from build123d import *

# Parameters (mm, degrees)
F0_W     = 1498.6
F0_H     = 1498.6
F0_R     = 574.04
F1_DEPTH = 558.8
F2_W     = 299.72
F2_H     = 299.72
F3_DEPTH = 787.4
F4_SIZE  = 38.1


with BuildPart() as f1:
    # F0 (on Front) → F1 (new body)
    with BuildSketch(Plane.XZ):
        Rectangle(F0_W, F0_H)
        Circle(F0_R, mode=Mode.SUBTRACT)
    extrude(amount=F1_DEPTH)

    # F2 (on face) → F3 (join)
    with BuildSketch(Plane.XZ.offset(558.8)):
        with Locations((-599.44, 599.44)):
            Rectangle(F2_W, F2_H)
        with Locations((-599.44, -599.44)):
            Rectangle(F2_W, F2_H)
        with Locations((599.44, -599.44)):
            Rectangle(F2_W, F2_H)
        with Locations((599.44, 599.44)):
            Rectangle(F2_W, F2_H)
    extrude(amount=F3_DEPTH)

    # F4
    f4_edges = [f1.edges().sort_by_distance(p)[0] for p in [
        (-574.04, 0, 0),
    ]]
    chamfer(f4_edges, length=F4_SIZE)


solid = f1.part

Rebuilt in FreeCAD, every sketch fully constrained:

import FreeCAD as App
import Part
import Sketcher

V = App.Vector
Q = App.Units.Quantity


def edges_at(feature, points):
    """Names of the edges that pass closest to the given points."""
    edges = feature.Shape.Edges
    near = lambda p: min(range(len(edges)), key=lambda i: edges[i].distToShape(Part.Vertex(*p))[0])
    return sorted({f"Edge{near(p) + 1}" for p in points})


def add_polygon(sketch, points):
    """Adds a closed chain of lines whose ends are joined by coincident constraints."""
    first, n = sketch.GeometryCount, len(points)
    for a, b in zip(points, points[1:] + points[:1]):
        sketch.addGeometry(Part.LineSegment(App.Vector(*a, 0), App.Vector(*b, 0)), False)
    for i in range(n):
        sketch.addConstraint(Sketcher.Constraint("Coincident", first + i, 2, first + (i + 1) % n, 1))

doc = App.newDocument("Part")
body = doc.addObject("PartDesign::Body", "Body")

sketch1 = doc.addObject("Sketcher::SketchObject", "Sketch")
body.addObject(sketch1)
sketch1.AttachmentSupport = (doc.XZ_Plane, [""])
sketch1.MapMode = "FlatFace"
add_polygon(sketch1, [(-749, 749), (-749, -749), (749, -749), (749, 749)])
sketch1.addGeometry(Part.Circle(V(0, 0, 0), V(0, 0, 1), 574), False)
sketch1.addConstraint([
    Sketcher.Constraint("Vertical", 0),
    Sketcher.Constraint("Horizontal", 1),
    Sketcher.Constraint("Vertical", 2),
    Sketcher.Constraint("Horizontal", 3),
    Sketcher.Constraint("Coincident", 4, 3, -1, 1),
    Sketcher.Constraint("Symmetric", 0, 2, 2, 2, -1, 1),
    Sketcher.Constraint("Equal", 3, 0),
    Sketcher.Constraint("Diameter", 4, Q("45.2 in")),
    Sketcher.Constraint("DistanceX", 1, 1, 1, 2, Q("59 in")),
])
pad1 = doc.addObject("PartDesign::Pad", "Pad")
body.addObject(pad1)
pad1.Profile = sketch1
pad1.Length = Q("22 in")

sketch2 = doc.addObject("Sketcher::SketchObject", "Sketch001")
body.addObject(sketch2)
sketch2.AttachmentSupport = (doc.XZ_Plane, [""])
sketch2.MapMode = "FlatFace"
sketch2.AttachmentOffset = App.Placement(V(0, 0, 22 * 25.4), App.Rotation())
add_polygon(sketch2, [(-749, 749), (-749, 450), (-450, 450), (-450, 749)])
add_polygon(sketch2, [(-749, -450), (-749, -749), (-450, -749), (-450, -450)])
add_polygon(sketch2, [(450, -450), (450, -749), (749, -749), (749, -450)])
add_polygon(sketch2, [(450, 749), (450, 450), (749, 450), (749, 749)])
sketch2.addConstraint([
    Sketcher.Constraint("Vertical", 0),
    Sketcher.Constraint("Horizontal", 1),
    Sketcher.Constraint("Vertical", 2),
    Sketcher.Constraint("Horizontal", 3),
    Sketcher.Constraint("Vertical", 4),
    Sketcher.Constraint("Horizontal", 5),
    Sketcher.Constraint("Vertical", 6),
    Sketcher.Constraint("Horizontal", 7),
    Sketcher.Constraint("Vertical", 8),
    Sketcher.Constraint("Horizontal", 9),
    Sketcher.Constraint("Vertical", 10),
    Sketcher.Constraint("Horizontal", 11),
    Sketcher.Constraint("Vertical", 12),
    Sketcher.Constraint("Horizontal", 13),
    Sketcher.Constraint("Vertical", 14),
    Sketcher.Constraint("Horizontal", 15),
    Sketcher.Constraint("Symmetric", 2, 2, 8, 2, -1, 1),
    Sketcher.Constraint("Symmetric", 0, 2, 10, 2, -1, 1),
    Sketcher.Constraint("Symmetric", 6, 2, 12, 2, -1, 1),
    Sketcher.Constraint("Symmetric", 4, 2, 14, 2, -1, 1),
    Sketcher.Constraint("Symmetric", 5, 2, 8, 2, -2),
    Sketcher.Constraint("Symmetric", 7, 2, 10, 2, -2),
    Sketcher.Constraint("Equal", 15, 0),
    Sketcher.Constraint("DistanceX", 1, 1, 1, 2, Q("11.8 in")),
    Sketcher.Constraint("DistanceY", 4, 2, 3, 2, Q("59 in")),
    Sketcher.Constraint("DistanceX", 4, 2, 9, 2, Q("59 in")),
])
pad2 = doc.addObject("PartDesign::Pad", "Pad001")
body.addObject(pad2)
pad2.Profile = sketch2
pad2.Length = Q("31 in")
doc.recompute()

chamfer = doc.addObject("PartDesign::Chamfer", "Chamfer")
body.addObject(chamfer)
chamfer.Base = (pad2, edges_at(pad2, [(-574.04, 0, 0)]))
chamfer.Size = Q("1.5 in")

doc.recompute()
